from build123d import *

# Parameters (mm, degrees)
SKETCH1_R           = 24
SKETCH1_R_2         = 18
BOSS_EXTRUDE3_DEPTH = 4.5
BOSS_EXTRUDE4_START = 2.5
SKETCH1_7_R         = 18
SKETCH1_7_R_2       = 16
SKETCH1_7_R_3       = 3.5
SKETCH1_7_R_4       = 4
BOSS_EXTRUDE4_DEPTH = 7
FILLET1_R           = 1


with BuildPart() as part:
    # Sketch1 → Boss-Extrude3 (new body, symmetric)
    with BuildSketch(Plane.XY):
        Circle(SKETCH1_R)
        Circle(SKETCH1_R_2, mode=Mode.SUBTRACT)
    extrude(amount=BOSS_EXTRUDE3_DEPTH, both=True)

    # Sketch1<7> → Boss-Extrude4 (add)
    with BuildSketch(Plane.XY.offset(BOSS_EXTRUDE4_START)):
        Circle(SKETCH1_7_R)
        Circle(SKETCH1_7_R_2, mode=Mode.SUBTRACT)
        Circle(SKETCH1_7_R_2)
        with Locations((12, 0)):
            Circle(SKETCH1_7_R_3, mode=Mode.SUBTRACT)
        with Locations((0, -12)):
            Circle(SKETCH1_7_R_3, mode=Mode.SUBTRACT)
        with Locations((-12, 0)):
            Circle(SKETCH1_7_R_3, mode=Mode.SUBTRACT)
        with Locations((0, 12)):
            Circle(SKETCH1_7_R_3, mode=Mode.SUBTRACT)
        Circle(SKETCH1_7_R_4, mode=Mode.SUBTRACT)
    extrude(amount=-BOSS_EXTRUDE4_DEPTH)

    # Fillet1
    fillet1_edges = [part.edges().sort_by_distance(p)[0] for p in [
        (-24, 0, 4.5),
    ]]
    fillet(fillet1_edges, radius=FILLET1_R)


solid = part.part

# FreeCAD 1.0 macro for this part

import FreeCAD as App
import Part
import Sketcher


def edges_at(feature, points):
    """Names of the edges that pass closest to the given points."""
    edges = feature.Shape.Edges
    near = lambda p: min(range(len(edges)), key=lambda i: edges[i].distToShape(Part.Vertex(*p))[0])
    return sorted({f"Edge{near(p) + 1}" for p in points})

doc = App.newDocument("Part")
body = doc.addObject("PartDesign::Body", "Body")

sketch1 = body.newObject("Sketcher::SketchObject", "Sketch")
sketch1.AttachmentSupport = (doc.getObject("XY_Plane"), [""])
sketch1.MapMode = "FlatFace"
sketch1.addGeometry(Part.Circle(App.Vector(0, 0, 0), App.Vector(0, 0, 1), 24), False)
sketch1.addGeometry(Part.Circle(App.Vector(0, 0, 0), App.Vector(0, 0, 1), 18), False)
sketch1.addConstraint(Sketcher.Constraint("Coincident", 0, 3, -1, 1))
sketch1.addConstraint(Sketcher.Constraint("Coincident", 1, 3, -1, 1))
sketch1.addConstraint(Sketcher.Constraint("Diameter", 0, 48.0))
sketch1.addConstraint(Sketcher.Constraint("Diameter", 1, 36.0))
pad1 = body.newObject("PartDesign::Pad", "Pad")
pad1.Profile = sketch1
pad1.Length = 9
pad1.Midplane = True

sketch2 = body.newObject("Sketcher::SketchObject", "Sketch001")
sketch2.AttachmentSupport = (doc.getObject("XY_Plane"), [""])
sketch2.MapMode = "FlatFace"
sketch2.AttachmentOffset = App.Placement(App.Vector(0, 0, 2.5), App.Rotation())
sketch2.addGeometry(Part.Circle(App.Vector(0, 0, 0), App.Vector(0, 0, 1), 18), False)
sketch2.addGeometry(Part.Circle(App.Vector(0, -12, 0), App.Vector(0, 0, 1), 3.5), False)
sketch2.addGeometry(Part.Circle(App.Vector(-12, 0, 0), App.Vector(0, 0, 1), 3.5), False)
sketch2.addGeometry(Part.Circle(App.Vector(0, 0, 0), App.Vector(0, 0, 1), 4), False)
sketch2.addGeometry(Part.Circle(App.Vector(12, 0, 0), App.Vector(0, 0, 1), 3.5), False)
sketch2.addGeometry(Part.Circle(App.Vector(0, 12, 0), App.Vector(0, 0, 1), 3.5), False)
sketch2.addConstraint(Sketcher.Constraint("Coincident", 0, 3, -1, 1))
sketch2.addConstraint(Sketcher.Constraint("Coincident", 3, 3, -1, 1))
sketch2.addConstraint(Sketcher.Constraint("Equal", 1, 2))
sketch2.addConstraint(Sketcher.Constraint("Equal", 2, 4))
sketch2.addConstraint(Sketcher.Constraint("Equal", 4, 5))
sketch2.addConstraint(Sketcher.Constraint("Symmetric", 2, 3, 4, 3, -1, 1))
sketch2.addConstraint(Sketcher.Constraint("Symmetric", 1, 3, 5, 3, -1, 1))
sketch2.addConstraint(Sketcher.Constraint("PointOnObject", 1, 3, -2))
sketch2.addConstraint(Sketcher.Constraint("PointOnObject", 2, 3, -1))
sketch2.addConstraint(Sketcher.Constraint("Diameter", 0, 36.0))
sketch2.addConstraint(Sketcher.Constraint("Diameter", 1, 7.0))
sketch2.addConstraint(Sketcher.Constraint("Diameter", 3, 8.0))
sketch2.addConstraint(Sketcher.Constraint("DistanceY", 1, 3, -1, 1, 12.0))
sketch2.addConstraint(Sketcher.Constraint("DistanceX", 2, 3, -1, 1, 12.0))
pad2 = body.newObject("PartDesign::Pad", "Pad001")
pad2.Profile = sketch2
pad2.Length = 7
pad2.Reversed = True
doc.recompute()

fillet = body.newObject("PartDesign::Fillet", "Fillet")
fillet.Base = (pad2, edges_at(pad2, [(-24, 0, 4.5)]))
fillet.Radius = 1

doc.recompute()
